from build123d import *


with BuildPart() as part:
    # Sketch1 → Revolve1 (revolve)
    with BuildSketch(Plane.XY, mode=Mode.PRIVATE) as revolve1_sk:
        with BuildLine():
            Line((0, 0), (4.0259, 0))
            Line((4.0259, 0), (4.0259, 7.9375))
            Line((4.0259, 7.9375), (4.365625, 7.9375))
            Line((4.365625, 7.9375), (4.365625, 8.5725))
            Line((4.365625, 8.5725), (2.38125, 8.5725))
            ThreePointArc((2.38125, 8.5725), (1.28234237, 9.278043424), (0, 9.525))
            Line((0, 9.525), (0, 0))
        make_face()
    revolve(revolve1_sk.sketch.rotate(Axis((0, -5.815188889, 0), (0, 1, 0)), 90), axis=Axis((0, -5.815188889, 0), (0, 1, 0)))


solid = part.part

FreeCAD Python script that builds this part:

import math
import FreeCAD as App
import Part
import Sketcher

V = App.Vector
Q = App.Units.Quantity

doc = App.newDocument("Part")
body = doc.addObject("PartDesign::Body", "Body")

sketch1 = body.newObject("Sketcher::SketchObject", "Sketch")
sketch1.AttachmentSupport = (doc.getObject("XY_Plane"), [""])
sketch1.MapMode = "FlatFace"
sketch1.addGeometry(Part.LineSegment(V(0, 0, 0), V(4.03, 0, 0)), False)
sketch1.addGeometry(Part.LineSegment(V(4.03, 0, 0), V(4.03, 7.94, 0)), False)
sketch1.addGeometry(Part.LineSegment(V(4.03, 7.94, 0), V(4.37, 7.94, 0)), False)
sketch1.addGeometry(Part.LineSegment(V(4.37, 7.94, 0), V(4.37, 8.57, 0)), False)
sketch1.addGeometry(Part.LineSegment(V(4.37, 8.57, 0), V(2.38, 8.57, 0)), False)
sketch1.addGeometry(Part.ArcOfCircle(Part.Circle(V(0, 6.07, 0), V(0, 0, 1), 3.45), math.radians(46), math.radians(90)), False)
sketch1.addGeometry(Part.LineSegment(V(0, 9.53, 0), V(0, 0, 0)), False)
sketch1.addConstraint(Sketcher.Constraint("Coincident", 0, 2, 1, 1))
sketch1.addConstraint(Sketcher.Constraint("Coincident", 1, 2, 2, 1))
sketch1.addConstraint(Sketcher.Constraint("Coincident", 2, 2, 3, 1))
sketch1.addConstraint(Sketcher.Constraint("Coincident", 3, 2, 4, 1))
sketch1.addConstraint(Sketcher.Constraint("Coincident", 4, 2, 5, 1))
sketch1.addConstraint(Sketcher.Constraint("Coincident", 5, 2, 6, 1))
sketch1.addConstraint(Sketcher.Constraint("Coincident", 6, 2, 0, 1))
sketch1.addConstraint(Sketcher.Constraint("Horizontal", 0))
sketch1.addConstraint(Sketcher.Constraint("Vertical", 1))
sketch1.addConstraint(Sketcher.Constraint("Horizontal", 2))
sketch1.addConstraint(Sketcher.Constraint("Vertical", 3))
sketch1.addConstraint(Sketcher.Constraint("Horizontal", 4))
sketch1.addConstraint(Sketcher.Constraint("Vertical", 6))
sketch1.addConstraint(Sketcher.Constraint("Coincident", 6, 2, -1, 1))
sketch1.addConstraint(Sketcher.Constraint("PointOnObject", 5, 3, -2))
sketch1.addConstraint(Sketcher.Constraint("DistanceX", 4, 2, 4, 1, Q("0.078125 in")))
sketch1.addConstraint(Sketcher.Constraint("DistanceY", 1, 1, 1, 2, Q("0.3125 in")))
sketch1.addConstraint(Sketcher.Constraint("DistanceY", 3, 1, 3, 2, Q("0.025 in")))
sketch1.addConstraint(Sketcher.Constraint("DistanceY", 6, 2, 6, 1, Q("0.375 in")))
sketch1.addConstraint(Sketcher.Constraint("DistanceX", 0, 1, 0, 2, Q("0.1585 in")))
sketch1.addConstraint(Sketcher.Constraint("DistanceX", -1, 1, 2, 2, Q("0.171875 in")))
revolution = body.newObject("PartDesign::Revolution", "Revolution")
revolution.Profile = sketch1
revolution.ReferenceAxis = (sketch1, ["V_Axis"])
revolution.Angle = 360

doc.recompute()
